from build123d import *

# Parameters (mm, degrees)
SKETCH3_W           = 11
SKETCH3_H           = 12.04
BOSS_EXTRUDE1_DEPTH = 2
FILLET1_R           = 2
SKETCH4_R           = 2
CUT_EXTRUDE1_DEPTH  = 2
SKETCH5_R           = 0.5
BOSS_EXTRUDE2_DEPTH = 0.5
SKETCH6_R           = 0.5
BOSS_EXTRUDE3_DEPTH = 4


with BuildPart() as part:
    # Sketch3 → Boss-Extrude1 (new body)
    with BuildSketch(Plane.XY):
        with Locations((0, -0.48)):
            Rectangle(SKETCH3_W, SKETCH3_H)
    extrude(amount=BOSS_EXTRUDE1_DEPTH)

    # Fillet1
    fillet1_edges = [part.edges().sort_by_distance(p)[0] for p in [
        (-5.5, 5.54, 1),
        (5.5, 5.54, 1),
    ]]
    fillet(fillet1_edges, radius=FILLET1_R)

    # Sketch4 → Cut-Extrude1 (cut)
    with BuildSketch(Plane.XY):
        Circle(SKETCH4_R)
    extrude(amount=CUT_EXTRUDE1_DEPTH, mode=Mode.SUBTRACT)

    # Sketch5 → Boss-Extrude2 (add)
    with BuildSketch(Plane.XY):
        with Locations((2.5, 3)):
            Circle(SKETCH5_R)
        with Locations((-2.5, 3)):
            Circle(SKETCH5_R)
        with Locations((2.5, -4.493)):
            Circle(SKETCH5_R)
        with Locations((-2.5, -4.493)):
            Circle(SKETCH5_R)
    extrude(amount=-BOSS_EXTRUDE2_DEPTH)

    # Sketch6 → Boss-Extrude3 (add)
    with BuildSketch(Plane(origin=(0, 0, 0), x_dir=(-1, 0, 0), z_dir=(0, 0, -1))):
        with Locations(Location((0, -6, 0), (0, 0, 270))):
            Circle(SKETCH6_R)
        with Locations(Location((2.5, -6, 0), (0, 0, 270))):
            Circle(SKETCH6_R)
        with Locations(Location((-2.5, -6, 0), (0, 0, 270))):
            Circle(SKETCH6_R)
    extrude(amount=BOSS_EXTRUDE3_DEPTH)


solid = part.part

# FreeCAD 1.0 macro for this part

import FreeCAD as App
import Part
import Sketcher
Q = App.Units.Quantity


def edges_at(feature, points):
    """Names of the edges that pass closest to the given points."""
    edges = feature.Shape.Edges
    near = lambda p: min(range(len(edges)), key=lambda i: edges[i].distToShape(Part.Vertex(*p))[0])
    return sorted({f"Edge{near(p) + 1}" for p in points})

doc = App.newDocument("Part")
params = doc.addObject("Spreadsheet::Sheet", "Params")
for row, (alias, value) in enumerate([
    ("sketch1_width", "11 mm"),
    ("sketch1_height", "12.04 mm"),
    ("pad1_length", "2 mm"),
    ("fillet_radius", "2 mm"),
    ("sketch2_diameter", "4 mm"),
    ("pocket1_length", "2 mm"),
    ("sketch3_diameter", "1 mm"),
    ("pad2_length", "0.5 mm"),
    ("sketch4_diameter", "1 mm"),
    ("pad3_length", "4 mm"),
], start=1):
    params.set(f"A{row}", alias)
    params.set(f"B{row}", "=" + value)
    params.setAlias(f"B{row}", alias)

body = doc.addObject("PartDesign::Body", "Body")

sketch1 = body.newObject("Sketcher::SketchObject", "Sketch")
sketch1.AttachmentSupport = (doc.getObject("XY_Plane"), [""])
sketch1.MapMode = "FlatFace"
sketch1.addGeometry(Part.LineSegment(App.Vector(-5.5, 5.54, 0), App.Vector(-5.5, -6.5, 0)), False)
sketch1.addGeometry(Part.LineSegment(App.Vector(-5.5, -6.5, 0), App.Vector(5.5, -6.5, 0)), False)
sketch1.addGeometry(Part.LineSegment(App.Vector(5.5, -6.5, 0), App.Vector(5.5, 5.54, 0)), False)
sketch1.addGeometry(Part.LineSegment(App.Vector(5.5, 5.54, 0), App.Vector(-5.5, 5.54, 0)), False)
sketch1.addConstraint(Sketcher.Constraint("Coincident", 0, 2, 1, 1))
sketch1.addConstraint(Sketcher.Constraint("Coincident", 1, 2, 2, 1))
sketch1.addConstraint(Sketcher.Constraint("Coincident", 2, 2, 3, 1))
sketch1.addConstraint(Sketcher.Constraint("Coincident", 3, 2, 0, 1))
sketch1.addConstraint(Sketcher.Constraint("Vertical", 0))
sketch1.addConstraint(Sketcher.Constraint("Horizontal", 1))
sketch1.addConstraint(Sketcher.Constraint("Vertical", 2))
sketch1.addConstraint(Sketcher.Constraint("Horizontal", 3))
sketch1.addConstraint(Sketcher.Constraint("DistanceX", 1, 1, 1, 2, Q("11 mm")))
sketch1.addConstraint(Sketcher.Constraint("DistanceY", 0, 2, 0, 1, Q("12.04 mm")))
sketch1.addConstraint(Sketcher.Constraint("DistanceX", 0, 2, -1, 1, Q("5.5 mm")))
sketch1.addConstraint(Sketcher.Constraint("DistanceY", 0, 2, -1, 1, Q("6.5 mm")))
sketch1.setExpression("Constraints[8]", "Params.sketch1_width")
sketch1.setExpression("Constraints[9]", "Params.sketch1_height")
pad1 = body.newObject("PartDesign::Pad", "Pad")
pad1.Profile = sketch1
pad1.setExpression("Length", "Params.pad1_length")
doc.recompute()

fillet = body.newObject("PartDesign::Fillet", "Fillet")
fillet.Base = (pad1, edges_at(pad1, [(-5.5, 5.54, 1), (5.5, 5.54, 1)]))
fillet.setExpression("Radius", "Params.fillet_radius")

sketch2 = body.newObject("Sketcher::SketchObject", "Sketch001")
sketch2.AttachmentSupport = (doc.getObject("XY_Plane"), [""])
sketch2.MapMode = "FlatFace"
sketch2.addGeometry(Part.Circle(App.Vector(0, 0, 0), App.Vector(0, 0, 1), 2), False)
sketch2.addConstraint(Sketcher.Constraint("Coincident", 0, 3, -1, 1))
sketch2.addConstraint(Sketcher.Constraint("Diameter", 0, Q("4 mm")))
sketch2.setExpression("Constraints[1]", "Params.sketch2_diameter")
pocket1 = body.newObject("PartDesign::Pocket", "Pocket")
pocket1.Profile = sketch2
pocket1.setExpression("Length", "Params.pocket1_length")
pocket1.Reversed = True

sketch3 = body.newObject("Sketcher::SketchObject", "Sketch002")
sketch3.AttachmentSupport = (doc.getObject("XY_Plane"), [""])
sketch3.MapMode = "FlatFace"
sketch3.addGeometry(Part.Circle(App.Vector(2.5, 3, 0), App.Vector(0, 0, 1), 0.5), False)
sketch3.addGeometry(Part.Circle(App.Vector(-2.5, 3, 0), App.Vector(0, 0, 1), 0.5), False)
sketch3.addGeometry(Part.Circle(App.Vector(2.5, -4.493, 0), App.Vector(0, 0, 1), 0.5), False)
sketch3.addGeometry(Part.Circle(App.Vector(-2.5, -4.493, 0), App.Vector(0, 0, 1), 0.5), False)
sketch3.addConstraint(Sketcher.Constraint("Equal", 0, 1))
sketch3.addConstraint(Sketcher.Constraint("Equal", 1, 2))
sketch3.addConstraint(Sketcher.Constraint("Equal", 2, 3))
sketch3.addConstraint(Sketcher.Constraint("Symmetric", 0, 3, 1, 3, -2))
sketch3.addConstraint(Sketcher.Constraint("Symmetric", 2, 3, 3, 3, -2))
sketch3.addConstraint(Sketcher.Constraint("Vertical", 0, 3, 2, 3))
sketch3.addConstraint(Sketcher.Constraint("Diameter", 0, Q("1 mm")))
sketch3.addConstraint(Sketcher.Constraint("DistanceY", -1, 1, 0, 3, Q("3 mm")))
sketch3.addConstraint(Sketcher.Constraint("DistanceX", 1, 3, 0, 3, Q("5 mm")))
sketch3.addConstraint(Sketcher.Constraint("DistanceY", 2, 3, -1, 1, Q("4.493 mm")))
sketch3.setExpression("Constraints[6]", "Params.sketch3_diameter")
pad2 = body.newObject("PartDesign::Pad", "Pad001")
pad2.Profile = sketch3
pad2.setExpression("Length", "Params.pad2_length")
pad2.Reversed = True

sketch4 = body.newObject("Sketcher::SketchObject", "Sketch003")
sketch4.AttachmentSupport = (doc.getObject("XY_Plane"), [""])
sketch4.MapMode = "FlatFace"
sketch4.addGeometry(Part.Circle(App.Vector(0, -6, 0), App.Vector(0, 0, 1), 0.5), False)
sketch4.addGeometry(Part.Circle(App.Vector(-2.5, -6, 0), App.Vector(0, 0, 1), 0.5), False)
sketch4.addGeometry(Part.Circle(App.Vector(2.5, -6, 0), App.Vector(0, 0, 1), 0.5), False)
sketch4.addConstraint(Sketcher.Constraint("Equal", 0, 1))
sketch4.addConstraint(Sketcher.Constraint("Equal", 1, 2))
sketch4.addConstraint(Sketcher.Constraint("Symmetric", 1, 3, 2, 3, -2))
sketch4.addConstraint(Sketcher.Constraint("PointOnObject", 0, 3, -2))
sketch4.addConstraint(Sketcher.Constraint("Horizontal", 0, 3, 1, 3))
sketch4.addConstraint(Sketcher.Constraint("Diameter", 0, Q("1 mm")))
sketch4.addConstraint(Sketcher.Constraint("DistanceY", 0, 3, -1, 1, Q("6 mm")))
sketch4.addConstraint(Sketcher.Constraint("DistanceX", 1, 3, 2, 3, Q("5 mm")))
sketch4.setExpression("Constraints[5]", "Params.sketch4_diameter")
pad3 = body.newObject("PartDesign::Pad", "Pad002")
pad3.Profile = sketch4
pad3.setExpression("Length", "Params.pad3_length")
pad3.Reversed = True

doc.recompute()
